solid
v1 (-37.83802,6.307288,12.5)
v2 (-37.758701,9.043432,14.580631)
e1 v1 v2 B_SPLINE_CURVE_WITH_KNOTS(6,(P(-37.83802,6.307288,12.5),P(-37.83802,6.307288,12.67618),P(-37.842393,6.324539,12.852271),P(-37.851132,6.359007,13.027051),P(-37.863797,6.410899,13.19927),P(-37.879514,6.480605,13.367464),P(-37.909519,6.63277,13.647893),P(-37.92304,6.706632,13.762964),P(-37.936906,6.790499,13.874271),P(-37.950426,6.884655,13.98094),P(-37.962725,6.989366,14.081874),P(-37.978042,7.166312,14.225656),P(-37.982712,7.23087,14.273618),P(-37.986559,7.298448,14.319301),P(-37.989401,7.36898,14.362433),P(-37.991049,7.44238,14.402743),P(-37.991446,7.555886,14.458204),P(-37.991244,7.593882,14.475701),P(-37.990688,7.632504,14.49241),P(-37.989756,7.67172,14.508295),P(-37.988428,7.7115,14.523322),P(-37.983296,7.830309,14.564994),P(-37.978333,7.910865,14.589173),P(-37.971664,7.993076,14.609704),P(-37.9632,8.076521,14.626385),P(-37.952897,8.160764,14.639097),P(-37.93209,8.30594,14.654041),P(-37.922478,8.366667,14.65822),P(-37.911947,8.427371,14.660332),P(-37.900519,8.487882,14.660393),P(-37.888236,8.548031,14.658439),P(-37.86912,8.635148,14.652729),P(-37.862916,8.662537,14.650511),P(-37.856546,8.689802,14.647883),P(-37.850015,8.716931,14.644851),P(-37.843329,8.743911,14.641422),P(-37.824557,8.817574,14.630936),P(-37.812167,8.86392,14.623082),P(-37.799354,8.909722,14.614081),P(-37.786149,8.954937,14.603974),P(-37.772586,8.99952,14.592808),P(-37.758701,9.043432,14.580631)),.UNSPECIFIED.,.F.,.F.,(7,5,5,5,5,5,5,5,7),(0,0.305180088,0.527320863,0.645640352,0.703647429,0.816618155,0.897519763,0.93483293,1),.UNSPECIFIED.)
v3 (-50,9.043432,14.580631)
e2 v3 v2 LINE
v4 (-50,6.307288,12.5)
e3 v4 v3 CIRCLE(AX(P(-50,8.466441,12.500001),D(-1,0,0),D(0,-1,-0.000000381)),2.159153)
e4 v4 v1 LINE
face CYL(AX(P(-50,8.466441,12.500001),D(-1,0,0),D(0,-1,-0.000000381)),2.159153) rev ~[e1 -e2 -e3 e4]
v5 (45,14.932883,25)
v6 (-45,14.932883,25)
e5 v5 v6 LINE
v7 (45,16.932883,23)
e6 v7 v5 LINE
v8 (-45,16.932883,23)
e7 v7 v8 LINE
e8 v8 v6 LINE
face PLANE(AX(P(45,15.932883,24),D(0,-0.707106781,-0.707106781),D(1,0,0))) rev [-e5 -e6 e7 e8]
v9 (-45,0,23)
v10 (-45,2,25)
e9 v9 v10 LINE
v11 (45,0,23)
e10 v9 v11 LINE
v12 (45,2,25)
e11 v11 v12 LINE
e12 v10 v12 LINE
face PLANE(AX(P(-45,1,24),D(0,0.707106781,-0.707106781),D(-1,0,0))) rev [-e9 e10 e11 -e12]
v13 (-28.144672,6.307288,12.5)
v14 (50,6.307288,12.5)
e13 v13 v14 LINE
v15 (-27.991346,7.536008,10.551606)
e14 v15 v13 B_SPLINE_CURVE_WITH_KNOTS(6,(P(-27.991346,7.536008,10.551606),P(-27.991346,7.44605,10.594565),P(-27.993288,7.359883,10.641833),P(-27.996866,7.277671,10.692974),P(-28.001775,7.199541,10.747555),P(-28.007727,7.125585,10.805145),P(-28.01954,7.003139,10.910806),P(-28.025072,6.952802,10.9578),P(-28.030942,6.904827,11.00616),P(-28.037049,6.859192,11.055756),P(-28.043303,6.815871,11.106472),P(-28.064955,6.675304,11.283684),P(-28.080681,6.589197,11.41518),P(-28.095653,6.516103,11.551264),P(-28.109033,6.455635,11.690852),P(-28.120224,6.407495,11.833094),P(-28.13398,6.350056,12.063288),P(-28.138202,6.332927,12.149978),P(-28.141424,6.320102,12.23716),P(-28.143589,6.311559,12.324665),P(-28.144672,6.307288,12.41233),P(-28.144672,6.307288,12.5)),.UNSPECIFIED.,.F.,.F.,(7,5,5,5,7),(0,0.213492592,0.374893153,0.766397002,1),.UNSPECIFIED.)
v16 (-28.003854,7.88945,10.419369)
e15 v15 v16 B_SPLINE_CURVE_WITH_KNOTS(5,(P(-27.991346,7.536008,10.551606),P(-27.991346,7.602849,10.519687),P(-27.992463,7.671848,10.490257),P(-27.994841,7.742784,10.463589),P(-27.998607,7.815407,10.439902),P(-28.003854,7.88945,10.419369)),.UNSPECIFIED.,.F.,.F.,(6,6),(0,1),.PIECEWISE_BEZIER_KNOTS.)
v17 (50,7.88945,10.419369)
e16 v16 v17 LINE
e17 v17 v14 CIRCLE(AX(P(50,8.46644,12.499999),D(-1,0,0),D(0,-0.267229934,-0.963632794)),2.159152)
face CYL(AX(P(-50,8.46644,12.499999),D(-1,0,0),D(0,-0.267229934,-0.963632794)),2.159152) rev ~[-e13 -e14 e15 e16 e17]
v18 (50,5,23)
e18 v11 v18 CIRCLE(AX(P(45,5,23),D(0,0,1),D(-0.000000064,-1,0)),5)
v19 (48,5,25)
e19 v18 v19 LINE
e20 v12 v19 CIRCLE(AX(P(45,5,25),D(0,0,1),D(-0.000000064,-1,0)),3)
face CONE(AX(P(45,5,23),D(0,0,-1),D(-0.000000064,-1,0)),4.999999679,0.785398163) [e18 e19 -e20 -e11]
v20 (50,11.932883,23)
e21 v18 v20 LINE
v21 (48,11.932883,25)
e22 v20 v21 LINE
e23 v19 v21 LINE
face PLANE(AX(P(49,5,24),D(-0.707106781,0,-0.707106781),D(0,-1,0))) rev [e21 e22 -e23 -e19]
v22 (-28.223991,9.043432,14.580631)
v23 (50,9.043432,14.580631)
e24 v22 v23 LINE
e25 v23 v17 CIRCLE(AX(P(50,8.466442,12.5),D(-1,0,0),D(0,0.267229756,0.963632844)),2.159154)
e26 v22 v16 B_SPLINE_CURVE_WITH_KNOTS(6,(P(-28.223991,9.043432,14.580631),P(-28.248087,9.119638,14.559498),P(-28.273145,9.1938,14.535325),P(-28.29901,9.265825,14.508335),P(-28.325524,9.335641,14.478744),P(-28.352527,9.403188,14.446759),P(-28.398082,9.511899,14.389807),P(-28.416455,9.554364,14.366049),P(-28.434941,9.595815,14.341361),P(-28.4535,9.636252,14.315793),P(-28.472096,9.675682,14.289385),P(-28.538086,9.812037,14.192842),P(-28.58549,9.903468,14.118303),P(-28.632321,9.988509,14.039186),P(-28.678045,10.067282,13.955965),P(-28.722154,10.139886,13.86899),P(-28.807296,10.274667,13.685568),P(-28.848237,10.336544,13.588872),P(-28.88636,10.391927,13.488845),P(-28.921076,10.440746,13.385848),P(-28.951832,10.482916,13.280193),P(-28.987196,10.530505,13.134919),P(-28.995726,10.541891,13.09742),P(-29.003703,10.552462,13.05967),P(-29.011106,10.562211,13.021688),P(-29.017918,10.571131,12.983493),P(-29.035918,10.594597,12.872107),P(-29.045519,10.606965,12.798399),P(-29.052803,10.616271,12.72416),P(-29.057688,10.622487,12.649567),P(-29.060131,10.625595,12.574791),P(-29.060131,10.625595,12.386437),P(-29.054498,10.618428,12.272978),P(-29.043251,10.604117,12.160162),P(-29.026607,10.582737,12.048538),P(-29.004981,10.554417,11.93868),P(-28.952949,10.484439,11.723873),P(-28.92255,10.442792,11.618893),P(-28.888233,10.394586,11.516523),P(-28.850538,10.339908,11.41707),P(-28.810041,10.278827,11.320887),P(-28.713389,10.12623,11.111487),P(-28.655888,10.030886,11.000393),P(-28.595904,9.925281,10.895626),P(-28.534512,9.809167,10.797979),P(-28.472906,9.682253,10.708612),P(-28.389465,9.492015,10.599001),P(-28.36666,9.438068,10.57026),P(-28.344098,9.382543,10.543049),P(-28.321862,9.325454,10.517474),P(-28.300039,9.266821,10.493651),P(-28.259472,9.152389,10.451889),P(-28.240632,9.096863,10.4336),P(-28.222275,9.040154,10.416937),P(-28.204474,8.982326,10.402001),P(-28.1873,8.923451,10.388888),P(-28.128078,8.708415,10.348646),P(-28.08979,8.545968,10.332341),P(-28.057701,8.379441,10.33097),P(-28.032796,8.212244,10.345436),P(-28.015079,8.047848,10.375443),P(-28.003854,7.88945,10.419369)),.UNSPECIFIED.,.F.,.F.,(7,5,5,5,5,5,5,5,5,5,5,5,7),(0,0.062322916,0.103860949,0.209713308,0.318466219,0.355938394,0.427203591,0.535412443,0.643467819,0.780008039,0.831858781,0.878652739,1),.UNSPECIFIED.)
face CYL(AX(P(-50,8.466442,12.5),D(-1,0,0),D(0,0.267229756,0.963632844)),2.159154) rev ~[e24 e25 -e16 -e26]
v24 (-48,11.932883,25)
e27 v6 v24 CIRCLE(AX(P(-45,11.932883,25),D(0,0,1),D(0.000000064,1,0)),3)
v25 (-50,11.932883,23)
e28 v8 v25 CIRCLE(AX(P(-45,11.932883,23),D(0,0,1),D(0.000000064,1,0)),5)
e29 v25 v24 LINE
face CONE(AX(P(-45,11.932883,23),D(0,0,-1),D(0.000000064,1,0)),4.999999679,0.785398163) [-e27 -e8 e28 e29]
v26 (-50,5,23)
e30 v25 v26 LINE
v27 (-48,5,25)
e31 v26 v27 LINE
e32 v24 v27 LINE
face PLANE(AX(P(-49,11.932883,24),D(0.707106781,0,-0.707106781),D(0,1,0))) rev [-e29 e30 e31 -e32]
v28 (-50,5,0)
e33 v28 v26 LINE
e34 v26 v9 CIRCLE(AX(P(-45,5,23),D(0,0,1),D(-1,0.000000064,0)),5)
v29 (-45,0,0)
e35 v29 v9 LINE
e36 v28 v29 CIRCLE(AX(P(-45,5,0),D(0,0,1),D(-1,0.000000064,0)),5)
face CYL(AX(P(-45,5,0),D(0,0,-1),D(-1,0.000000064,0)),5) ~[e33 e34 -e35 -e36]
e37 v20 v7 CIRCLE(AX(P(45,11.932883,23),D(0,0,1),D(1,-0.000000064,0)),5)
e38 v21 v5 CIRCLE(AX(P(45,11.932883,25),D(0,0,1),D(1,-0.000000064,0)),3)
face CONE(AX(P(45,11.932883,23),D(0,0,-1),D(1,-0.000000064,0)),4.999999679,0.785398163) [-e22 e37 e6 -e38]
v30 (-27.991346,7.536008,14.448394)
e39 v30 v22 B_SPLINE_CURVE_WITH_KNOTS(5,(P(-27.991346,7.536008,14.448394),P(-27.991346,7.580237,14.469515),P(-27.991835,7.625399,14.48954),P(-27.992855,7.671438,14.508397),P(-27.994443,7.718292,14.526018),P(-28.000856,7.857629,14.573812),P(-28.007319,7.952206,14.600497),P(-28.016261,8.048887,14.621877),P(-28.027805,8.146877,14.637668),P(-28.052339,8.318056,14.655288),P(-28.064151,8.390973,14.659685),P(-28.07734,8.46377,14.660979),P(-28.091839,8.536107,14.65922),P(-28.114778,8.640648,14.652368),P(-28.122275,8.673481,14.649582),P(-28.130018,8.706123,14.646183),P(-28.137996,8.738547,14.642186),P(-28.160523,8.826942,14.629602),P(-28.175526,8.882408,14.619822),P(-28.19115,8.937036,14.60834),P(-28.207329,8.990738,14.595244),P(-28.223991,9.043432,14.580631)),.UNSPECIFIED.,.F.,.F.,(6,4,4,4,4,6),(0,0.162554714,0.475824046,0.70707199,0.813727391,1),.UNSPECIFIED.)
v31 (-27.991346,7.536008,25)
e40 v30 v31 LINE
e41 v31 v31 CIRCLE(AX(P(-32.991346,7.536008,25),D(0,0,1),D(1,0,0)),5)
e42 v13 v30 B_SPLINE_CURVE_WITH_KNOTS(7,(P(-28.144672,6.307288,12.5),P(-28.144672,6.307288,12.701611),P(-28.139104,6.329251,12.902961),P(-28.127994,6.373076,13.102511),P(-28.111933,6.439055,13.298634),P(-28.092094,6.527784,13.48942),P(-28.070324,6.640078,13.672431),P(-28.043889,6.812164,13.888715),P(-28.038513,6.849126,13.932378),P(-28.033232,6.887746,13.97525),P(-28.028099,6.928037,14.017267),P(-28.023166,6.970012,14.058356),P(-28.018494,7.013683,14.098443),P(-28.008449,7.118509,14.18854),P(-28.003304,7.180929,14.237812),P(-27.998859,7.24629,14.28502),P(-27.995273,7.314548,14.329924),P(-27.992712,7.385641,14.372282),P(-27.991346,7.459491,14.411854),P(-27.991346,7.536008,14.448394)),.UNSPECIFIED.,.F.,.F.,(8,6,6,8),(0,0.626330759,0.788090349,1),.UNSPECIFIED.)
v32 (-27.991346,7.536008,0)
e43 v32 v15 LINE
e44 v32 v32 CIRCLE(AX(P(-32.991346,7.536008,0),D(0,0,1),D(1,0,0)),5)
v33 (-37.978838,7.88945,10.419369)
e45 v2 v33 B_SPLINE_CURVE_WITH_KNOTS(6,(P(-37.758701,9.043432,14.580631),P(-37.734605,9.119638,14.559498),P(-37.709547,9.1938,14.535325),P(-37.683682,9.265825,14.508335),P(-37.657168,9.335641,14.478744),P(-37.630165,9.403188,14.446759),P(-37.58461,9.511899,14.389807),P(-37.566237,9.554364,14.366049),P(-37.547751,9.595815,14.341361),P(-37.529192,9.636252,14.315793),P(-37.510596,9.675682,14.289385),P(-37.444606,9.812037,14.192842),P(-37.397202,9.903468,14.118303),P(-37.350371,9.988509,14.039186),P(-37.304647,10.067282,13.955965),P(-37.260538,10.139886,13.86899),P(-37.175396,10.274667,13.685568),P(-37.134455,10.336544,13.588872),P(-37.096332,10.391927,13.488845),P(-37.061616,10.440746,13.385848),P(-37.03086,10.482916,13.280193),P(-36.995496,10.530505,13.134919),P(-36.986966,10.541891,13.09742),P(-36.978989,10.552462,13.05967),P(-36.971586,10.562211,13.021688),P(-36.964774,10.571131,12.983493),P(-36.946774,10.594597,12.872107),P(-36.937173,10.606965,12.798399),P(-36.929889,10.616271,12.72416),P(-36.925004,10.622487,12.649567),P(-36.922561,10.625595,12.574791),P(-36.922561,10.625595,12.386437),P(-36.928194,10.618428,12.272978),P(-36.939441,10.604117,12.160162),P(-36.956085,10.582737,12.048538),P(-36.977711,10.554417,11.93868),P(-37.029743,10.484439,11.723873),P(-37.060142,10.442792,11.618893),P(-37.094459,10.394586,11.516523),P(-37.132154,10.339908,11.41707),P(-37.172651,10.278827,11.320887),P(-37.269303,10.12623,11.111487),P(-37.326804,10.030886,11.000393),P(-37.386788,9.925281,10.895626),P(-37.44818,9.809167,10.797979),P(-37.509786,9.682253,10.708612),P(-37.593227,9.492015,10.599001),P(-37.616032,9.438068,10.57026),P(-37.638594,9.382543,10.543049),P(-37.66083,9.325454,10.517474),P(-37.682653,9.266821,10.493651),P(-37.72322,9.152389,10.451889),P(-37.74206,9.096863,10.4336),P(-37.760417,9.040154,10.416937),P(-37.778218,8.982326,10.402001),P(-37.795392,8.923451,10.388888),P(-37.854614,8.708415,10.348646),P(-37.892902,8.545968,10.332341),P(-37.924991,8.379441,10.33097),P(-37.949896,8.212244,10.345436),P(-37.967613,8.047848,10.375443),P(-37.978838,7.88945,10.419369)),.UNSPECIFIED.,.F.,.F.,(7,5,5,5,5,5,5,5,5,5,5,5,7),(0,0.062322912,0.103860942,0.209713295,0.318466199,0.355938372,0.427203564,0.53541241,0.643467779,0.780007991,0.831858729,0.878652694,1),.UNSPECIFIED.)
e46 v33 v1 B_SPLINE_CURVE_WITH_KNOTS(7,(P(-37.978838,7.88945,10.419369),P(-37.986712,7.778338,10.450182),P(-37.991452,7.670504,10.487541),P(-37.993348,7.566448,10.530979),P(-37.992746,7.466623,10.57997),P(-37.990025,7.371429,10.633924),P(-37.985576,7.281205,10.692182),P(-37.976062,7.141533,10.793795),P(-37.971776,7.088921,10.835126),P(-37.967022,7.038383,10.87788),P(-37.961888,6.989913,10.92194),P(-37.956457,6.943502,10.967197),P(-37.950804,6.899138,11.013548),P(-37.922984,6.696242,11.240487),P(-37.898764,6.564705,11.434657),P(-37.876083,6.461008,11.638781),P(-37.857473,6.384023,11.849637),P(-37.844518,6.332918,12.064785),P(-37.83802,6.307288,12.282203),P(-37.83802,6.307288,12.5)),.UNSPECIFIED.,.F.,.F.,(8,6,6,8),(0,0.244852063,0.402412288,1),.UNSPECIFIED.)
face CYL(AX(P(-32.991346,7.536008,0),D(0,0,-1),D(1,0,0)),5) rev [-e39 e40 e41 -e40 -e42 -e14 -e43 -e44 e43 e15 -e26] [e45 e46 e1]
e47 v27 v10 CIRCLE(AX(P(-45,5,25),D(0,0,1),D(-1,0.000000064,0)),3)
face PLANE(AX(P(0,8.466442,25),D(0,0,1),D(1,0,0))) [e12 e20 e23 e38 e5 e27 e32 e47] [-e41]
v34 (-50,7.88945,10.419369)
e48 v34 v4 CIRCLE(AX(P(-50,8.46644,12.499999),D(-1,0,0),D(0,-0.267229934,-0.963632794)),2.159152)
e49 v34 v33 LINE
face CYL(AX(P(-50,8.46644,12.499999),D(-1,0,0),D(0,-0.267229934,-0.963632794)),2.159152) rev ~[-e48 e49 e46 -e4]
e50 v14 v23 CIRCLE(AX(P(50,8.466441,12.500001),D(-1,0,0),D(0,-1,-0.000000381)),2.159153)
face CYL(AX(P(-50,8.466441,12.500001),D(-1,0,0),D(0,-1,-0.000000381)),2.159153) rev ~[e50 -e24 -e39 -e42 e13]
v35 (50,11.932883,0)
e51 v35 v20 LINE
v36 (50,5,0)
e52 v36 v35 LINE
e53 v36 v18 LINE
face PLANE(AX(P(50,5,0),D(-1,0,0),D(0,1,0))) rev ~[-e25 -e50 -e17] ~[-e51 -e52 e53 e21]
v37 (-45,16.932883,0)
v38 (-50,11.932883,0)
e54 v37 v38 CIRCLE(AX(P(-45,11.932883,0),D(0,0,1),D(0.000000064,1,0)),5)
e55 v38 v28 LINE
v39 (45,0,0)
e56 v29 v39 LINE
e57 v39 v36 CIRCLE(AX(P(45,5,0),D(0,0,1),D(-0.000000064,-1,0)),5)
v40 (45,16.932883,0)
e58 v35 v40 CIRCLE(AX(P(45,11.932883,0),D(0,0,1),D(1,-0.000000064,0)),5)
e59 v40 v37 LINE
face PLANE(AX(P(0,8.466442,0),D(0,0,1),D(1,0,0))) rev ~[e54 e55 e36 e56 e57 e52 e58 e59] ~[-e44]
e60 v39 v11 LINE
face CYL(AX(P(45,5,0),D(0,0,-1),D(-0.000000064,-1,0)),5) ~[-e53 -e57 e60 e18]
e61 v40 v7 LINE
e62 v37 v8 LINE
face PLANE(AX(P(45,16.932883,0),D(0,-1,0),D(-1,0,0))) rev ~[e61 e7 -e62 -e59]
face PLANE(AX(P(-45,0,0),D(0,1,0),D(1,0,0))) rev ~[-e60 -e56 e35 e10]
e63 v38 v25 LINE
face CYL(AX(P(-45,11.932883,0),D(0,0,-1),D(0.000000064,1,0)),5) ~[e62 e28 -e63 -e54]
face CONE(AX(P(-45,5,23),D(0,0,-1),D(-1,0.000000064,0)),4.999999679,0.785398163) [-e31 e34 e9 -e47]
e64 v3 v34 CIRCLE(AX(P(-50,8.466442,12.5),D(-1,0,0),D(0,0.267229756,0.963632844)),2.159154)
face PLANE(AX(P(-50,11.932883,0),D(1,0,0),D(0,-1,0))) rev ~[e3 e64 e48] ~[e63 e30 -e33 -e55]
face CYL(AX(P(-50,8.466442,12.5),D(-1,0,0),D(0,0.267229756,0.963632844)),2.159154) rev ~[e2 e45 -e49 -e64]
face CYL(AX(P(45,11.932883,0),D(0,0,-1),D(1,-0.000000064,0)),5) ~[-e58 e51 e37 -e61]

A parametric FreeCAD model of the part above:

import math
import FreeCAD as App
import Part
import Sketcher


def edges_at(feature, points):
    """Names of the edges that pass closest to the given points."""
    edges = feature.Shape.Edges
    near = lambda p: min(range(len(edges)), key=lambda i: edges[i].distToShape(Part.Vertex(*p))[0])
    return sorted({f"Edge{near(p) + 1}" for p in points})

doc = App.newDocument("Part")
params = doc.addObject("Spreadsheet::Sheet", "Params")
for row, (alias, value) in enumerate([
    ("sketch1_diameter", "10 mm"),
    ("sketch1_width", "90 mm"),
    ("pad1_length", "25 mm"),
    ("chamfer_size", "2 mm"),
], start=1):
    params.set(f"A{row}", alias)
    params.set(f"B{row}", "=" + value)
    params.setAlias(f"B{row}", alias)

body = doc.addObject("PartDesign::Body", "Body")

# Sketch on XY plane
sketch1 = body.newObject("Sketcher::SketchObject", "Sketch")
sketch1.AttachmentSupport = (doc.getObject("XY_Plane"), [""])
sketch1.MapMode = "FlatFace"
sketch1.addGeometry([
    Part.LineSegment(App.Vector(45, 16.932883, 0), App.Vector(-45, 16.932883, 0)),  # 0
    Part.ArcOfCircle(Part.Circle(App.Vector(-45, 11.932883, 0), App.Vector(0, 0, 1), 5), math.radians(89.999996), math.radians(180.000004)),  # 1
    Part.LineSegment(App.Vector(-50, 11.932883, 0), App.Vector(-50, 5, 0)),  # 2
    Part.ArcOfCircle(Part.Circle(App.Vector(-45, 5, 0), App.Vector(0, 0, 1), 5), math.radians(179.999996), math.radians(270.000004)),  # 3
    Part.LineSegment(App.Vector(-45, 0, 0), App.Vector(45, 0, 0)),  # 4
    Part.ArcOfCircle(Part.Circle(App.Vector(45, 5, 0), App.Vector(0, 0, 1), 5), math.radians(-90.000004), math.radians(0.000004)),  # 5
    Part.LineSegment(App.Vector(50, 5, 0), App.Vector(50, 11.932883, 0)),  # 6
    Part.ArcOfCircle(Part.Circle(App.Vector(45, 11.932883, 0), App.Vector(0, 0, 1), 5), math.radians(-0.000004), math.radians(90.000004)),  # 7
    Part.Circle(App.Vector(-32.991346, 7.536008, 0), App.Vector(0, 0, 1), 5),  # 8
], False)
sketch1.addConstraint([
    Sketcher.Constraint("Tangent", 0, 2, 1, 1),
    Sketcher.Constraint("Tangent", 1, 2, 2, 1),
    Sketcher.Constraint("Tangent", 2, 2, 3, 1),
    Sketcher.Constraint("Tangent", 3, 2, 4, 1),
    Sketcher.Constraint("Tangent", 4, 2, 5, 1),
    Sketcher.Constraint("Tangent", 5, 2, 6, 1),
    Sketcher.Constraint("Tangent", 6, 2, 7, 1),
    Sketcher.Constraint("Tangent", 7, 2, 0, 1),
    Sketcher.Constraint("Horizontal", 0),
    Sketcher.Constraint("Vertical", 2),
    Sketcher.Constraint("Horizontal", 4),
    Sketcher.Constraint("Vertical", 6),
    Sketcher.Constraint("Equal", 1, 3),
    Sketcher.Constraint("Equal", 3, 5),
    Sketcher.Constraint("Equal", 5, 7),
    Sketcher.Constraint("Equal", 7, 8),
    Sketcher.Constraint("Symmetric", 3, 2, 4, 2, -1, 1),
    Sketcher.Constraint("Diameter", 8, 10.0),
    Sketcher.Constraint("DistanceX", 0, 2, 0, 1, 90.0),
    Sketcher.Constraint("DistanceY", 2, 2, 2, 1, 6.932883),
    Sketcher.Constraint("DistanceY", 3, 3, 8, 3, 2.536008),
    Sketcher.Constraint("DistanceX", 8, 3, -1, 1, 32.991346),
])
sketch1.setExpression("Constraints[17]", "Params.sketch1_diameter")
sketch1.setExpression("Constraints[18]", "Params.sketch1_width")
pad1 = body.newObject("PartDesign::Pad", "Pad")
pad1.Profile = sketch1
pad1.setExpression("Length", "Params.pad1_length")

# Sketch on YZ plane
sketch2 = body.newObject("Sketcher::SketchObject", "Sketch001")
sketch2.AttachmentSupport = (doc.getObject("YZ_Plane"), [""])
sketch2.MapMode = "FlatFace"
sketch2.AttachmentOffset = App.Placement(App.Vector(0, 0, -50), App.Rotation())
sketch2.addGeometry([
    Part.ArcOfCircle(Part.Circle(App.Vector(8.46644, 12.499999, 0), App.Vector(0, 0, 1), 2.159152), math.radians(179.999966), math.radians(254.500502)),
    Part.ArcOfCircle(Part.Circle(App.Vector(8.466441, 12.500001, 0), App.Vector(0, 0, 1), 2.159153), math.radians(74.500476), math.radians(180.000022)),
    Part.ArcOfCircle(Part.Circle(App.Vector(8.466442, 12.5, 0), App.Vector(0, 0, 1), 2.159154), math.radians(-105.499539), math.radians(74.500513)),
], False)
sketch2.addConstraint([
    Sketcher.Constraint("Tangent", 0, 1, 1, 2),
    Sketcher.Constraint("Tangent", 1, 1, 2, 2),
    Sketcher.Constraint("Tangent", 2, 1, 0, 2),
    Sketcher.Constraint("Horizontal", 2, 3, 0, 1),
    Sketcher.Constraint("DistanceY", -1, 1, 0, 3, 12.499999),
    Sketcher.Constraint("Radius", 0, 2.159152),
    Sketcher.Constraint("DistanceX", -1, 1, 0, 3, 8.46644),
    Sketcher.Constraint("DistanceY", -1, 1, 1, 1, 14.580631),
    Sketcher.Constraint("DistanceX", -1, 1, 2, 1, 7.88945),
])
pocket1 = body.newObject("PartDesign::Pocket", "Pocket")
pocket1.Profile = sketch2
pocket1.Type = "ThroughAll"
pocket1.Reversed = True
doc.recompute()

chamfer = body.newObject("PartDesign::Chamfer", "Chamfer")
chamfer.Base = (pocket1, edges_at(pocket1, [(0, 16.933, 25)]))
chamfer.setExpression("Size", "Params.chamfer_size")

doc.recompute()
